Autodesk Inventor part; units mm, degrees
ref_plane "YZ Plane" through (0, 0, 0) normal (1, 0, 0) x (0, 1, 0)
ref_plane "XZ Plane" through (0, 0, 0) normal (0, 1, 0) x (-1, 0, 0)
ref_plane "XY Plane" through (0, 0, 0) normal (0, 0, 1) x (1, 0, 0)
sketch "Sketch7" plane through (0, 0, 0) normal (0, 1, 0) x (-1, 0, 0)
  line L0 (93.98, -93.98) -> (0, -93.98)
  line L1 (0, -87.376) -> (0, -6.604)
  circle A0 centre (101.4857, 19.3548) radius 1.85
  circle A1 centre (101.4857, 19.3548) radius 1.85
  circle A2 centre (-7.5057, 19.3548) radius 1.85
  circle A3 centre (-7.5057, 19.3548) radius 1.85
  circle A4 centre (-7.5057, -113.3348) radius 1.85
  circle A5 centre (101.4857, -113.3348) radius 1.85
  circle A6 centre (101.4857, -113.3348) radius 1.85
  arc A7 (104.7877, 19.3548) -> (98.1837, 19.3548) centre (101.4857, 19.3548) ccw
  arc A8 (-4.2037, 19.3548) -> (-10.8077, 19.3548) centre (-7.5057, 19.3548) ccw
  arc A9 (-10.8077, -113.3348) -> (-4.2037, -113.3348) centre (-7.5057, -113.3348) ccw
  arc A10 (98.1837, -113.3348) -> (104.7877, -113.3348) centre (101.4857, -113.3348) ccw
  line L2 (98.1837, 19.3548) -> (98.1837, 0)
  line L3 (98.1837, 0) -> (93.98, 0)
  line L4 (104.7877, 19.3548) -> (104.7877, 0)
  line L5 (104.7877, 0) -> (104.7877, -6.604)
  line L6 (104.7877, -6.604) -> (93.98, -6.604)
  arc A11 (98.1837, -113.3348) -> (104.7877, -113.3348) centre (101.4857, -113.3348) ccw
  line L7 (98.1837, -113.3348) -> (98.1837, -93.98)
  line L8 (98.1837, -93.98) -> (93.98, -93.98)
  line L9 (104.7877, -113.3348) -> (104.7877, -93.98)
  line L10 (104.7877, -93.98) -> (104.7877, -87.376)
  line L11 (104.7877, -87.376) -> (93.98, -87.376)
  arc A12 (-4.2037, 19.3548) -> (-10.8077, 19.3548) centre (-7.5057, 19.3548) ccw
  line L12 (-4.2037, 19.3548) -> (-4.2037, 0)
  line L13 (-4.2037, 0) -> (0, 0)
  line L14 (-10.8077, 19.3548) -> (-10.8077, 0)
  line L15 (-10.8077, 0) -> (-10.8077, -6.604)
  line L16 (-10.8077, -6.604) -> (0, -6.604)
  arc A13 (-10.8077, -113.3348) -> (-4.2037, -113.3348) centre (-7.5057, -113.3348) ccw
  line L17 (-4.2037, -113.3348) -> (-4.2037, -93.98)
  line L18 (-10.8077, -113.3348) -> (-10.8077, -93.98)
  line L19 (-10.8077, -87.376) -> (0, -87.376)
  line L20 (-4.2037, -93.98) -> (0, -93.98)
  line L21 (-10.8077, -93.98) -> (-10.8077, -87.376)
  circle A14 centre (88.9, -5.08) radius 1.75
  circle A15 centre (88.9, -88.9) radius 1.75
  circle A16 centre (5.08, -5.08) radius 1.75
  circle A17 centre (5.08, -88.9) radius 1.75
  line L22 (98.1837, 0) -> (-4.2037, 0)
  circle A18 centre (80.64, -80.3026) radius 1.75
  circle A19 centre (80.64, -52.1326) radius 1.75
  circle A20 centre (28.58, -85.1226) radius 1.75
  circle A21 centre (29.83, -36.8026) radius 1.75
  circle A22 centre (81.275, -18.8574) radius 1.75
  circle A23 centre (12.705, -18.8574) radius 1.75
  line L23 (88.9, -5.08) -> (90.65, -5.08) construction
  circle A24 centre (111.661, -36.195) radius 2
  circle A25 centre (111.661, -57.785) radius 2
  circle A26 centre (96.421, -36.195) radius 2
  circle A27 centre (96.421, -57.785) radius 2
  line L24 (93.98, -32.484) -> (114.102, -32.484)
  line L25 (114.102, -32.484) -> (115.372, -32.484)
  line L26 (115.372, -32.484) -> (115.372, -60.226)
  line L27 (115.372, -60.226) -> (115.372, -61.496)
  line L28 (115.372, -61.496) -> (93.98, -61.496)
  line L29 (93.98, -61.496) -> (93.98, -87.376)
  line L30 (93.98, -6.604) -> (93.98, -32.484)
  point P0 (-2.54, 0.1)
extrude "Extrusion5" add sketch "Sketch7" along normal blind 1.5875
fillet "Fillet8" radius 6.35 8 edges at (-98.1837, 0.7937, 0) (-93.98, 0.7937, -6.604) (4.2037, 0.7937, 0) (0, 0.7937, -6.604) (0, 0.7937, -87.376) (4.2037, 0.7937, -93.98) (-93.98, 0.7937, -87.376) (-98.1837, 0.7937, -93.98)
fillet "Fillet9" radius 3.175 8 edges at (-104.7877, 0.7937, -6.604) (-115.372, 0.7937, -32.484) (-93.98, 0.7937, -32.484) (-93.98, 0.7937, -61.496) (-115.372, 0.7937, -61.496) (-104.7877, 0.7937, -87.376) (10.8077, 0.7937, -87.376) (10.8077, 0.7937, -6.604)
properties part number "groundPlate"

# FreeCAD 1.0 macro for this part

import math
import FreeCAD as App
import Part
import Sketcher
from FreeCAD import Vector
Q = App.Units.Quantity


def edges_at(feature, points):
    """Names of the edges that pass closest to the given points."""
    edges = feature.Shape.Edges
    near = lambda p: min(range(len(edges)), key=lambda i: edges[i].distToShape(Part.Vertex(*p))[0])
    return sorted({f"Edge{near(p) + 1}" for p in points})

doc = App.newDocument("Part")
params = doc.addObject("Spreadsheet::Sheet", "Params")
for row, (alias, value) in enumerate([
    ("sketch1_radius", "0.13 in"),
    ("sketch1_height", "3.18 in"),
    ("sketch1_width", "4.031 in"),
    ("sketch1_height2", "0.762 in"),
    ("pad1_length", "0.0625 in"),
    ("fillet_radius", "0.25 in"),
    ("fillet2_radius", "0.125 in"),
], start=1):
    params.set(f"A{row}", alias)
    params.set(f"B{row}", "=" + value)
    params.setAlias(f"B{row}", alias)

body = doc.addObject("PartDesign::Body", "Body")

# Sketch on XZ plane
sketch1 = doc.addObject("Sketcher::SketchObject", "Sketch")
body.addObject(sketch1)
sketch1.AttachmentSupport = (doc.XZ_Plane, [""])
sketch1.MapMode = "FlatFace"
sketch1.addGeometry([
    Part.LineSegment(Vector(4.2, -94, 0), Vector(-98.2, -94, 0)),  # 0
    Part.LineSegment(Vector(-98.2, -94, 0), Vector(-98.2, -113.3, 0)),  # 1
    Part.ArcOfCircle(Part.Circle(Vector(-101.5, -113.3, 0), Vector(0, 0, 1), 3.3), math.radians(180), math.radians(360)),  # 2
    Part.LineSegment(Vector(-104.8, -113.3, 0), Vector(-104.8, -87.4, 0)),  # 3
    Part.LineSegment(Vector(-104.8, -87.4, 0), Vector(-94, -87.4, 0)),  # 4
    Part.LineSegment(Vector(-94, -87.4, 0), Vector(-94, -61.5, 0)),  # 5
    Part.LineSegment(Vector(-94, -61.5, 0), Vector(-115.4, -61.5, 0)),  # 6
    Part.LineSegment(Vector(-115.4, -61.5, 0), Vector(-115.4, -32.5, 0)),  # 7
    Part.LineSegment(Vector(-115.4, -32.5, 0), Vector(-94, -32.5, 0)),  # 8
    Part.LineSegment(Vector(-94, -32.5, 0), Vector(-94, -6.6, 0)),  # 9
    Part.LineSegment(Vector(-94, -6.6, 0), Vector(-104.8, -6.6, 0)),  # 10
    Part.LineSegment(Vector(-104.8, -6.6, 0), Vector(-104.8, 19.4, 0)),  # 11
    Part.ArcOfCircle(Part.Circle(Vector(-101.5, 19.4, 0), Vector(0, 0, 1), 3.3), math.radians(0), math.radians(180)),  # 12
    Part.LineSegment(Vector(-98.2, 19.4, 0), Vector(-98.2, 0, 0)),  # 13
    Part.LineSegment(Vector(-98.2, 0, 0), Vector(4.2, 0, 0)),  # 14
    Part.LineSegment(Vector(4.2, 0, 0), Vector(4.2, 19.4, 0)),  # 15
    Part.ArcOfCircle(Part.Circle(Vector(7.5, 19.4, 0), Vector(0, 0, 1), 3.3), math.radians(0), math.radians(180)),  # 16
    Part.LineSegment(Vector(10.8, 19.4, 0), Vector(10.8, -6.6, 0)),  # 17
    Part.LineSegment(Vector(10.8, -6.6, 0), Vector(0, -6.6, 0)),  # 18
    Part.LineSegment(Vector(0, -6.6, 0), Vector(0, -87.4, 0)),  # 19
    Part.LineSegment(Vector(0, -87.4, 0), Vector(10.8, -87.4, 0)),  # 20
    Part.LineSegment(Vector(10.8, -87.4, 0), Vector(10.8, -113.3, 0)),  # 21
    Part.ArcOfCircle(Part.Circle(Vector(7.5, -113.3, 0), Vector(0, 0, 1), 3.3), math.radians(180), math.radians(360)),  # 22
    Part.LineSegment(Vector(4.2, -113.3, 0), Vector(4.2, -94, 0)),  # 23
    Part.Circle(Vector(7.5, -113.3, 0), Vector(0, 0, 1), 1.9),  # 24
    Part.Circle(Vector(-5.1, -88.9, 0), Vector(0, 0, 1), 1.8),  # 25
    Part.Circle(Vector(-28.6, -85.1, 0), Vector(0, 0, 1), 1.8),  # 26
    Part.Circle(Vector(-101.5, -113.3, 0), Vector(0, 0, 1), 1.9),  # 27
    Part.Circle(Vector(-88.9, -88.9, 0), Vector(0, 0, 1), 1.8),  # 28
    Part.Circle(Vector(-80.6, -80.3, 0), Vector(0, 0, 1), 1.8),  # 29
    Part.Circle(Vector(-80.6, -52.1, 0), Vector(0, 0, 1), 1.8),  # 30
    Part.Circle(Vector(-96.4, -57.8, 0), Vector(0, 0, 1), 2),  # 31
    Part.Circle(Vector(-111.7, -57.8, 0), Vector(0, 0, 1), 2),  # 32
    Part.Circle(Vector(-12.7, -18.9, 0), Vector(0, 0, 1), 1.8),  # 33
    Part.Circle(Vector(-29.8, -36.8, 0), Vector(0, 0, 1), 1.8),  # 34
    Part.Circle(Vector(-5.1, -5.1, 0), Vector(0, 0, 1), 1.8),  # 35
    Part.Circle(Vector(7.5, 19.4, 0), Vector(0, 0, 1), 1.9),  # 36
    Part.Circle(Vector(-81.3, -18.9, 0), Vector(0, 0, 1), 1.8),  # 37
    Part.Circle(Vector(-96.4, -36.2, 0), Vector(0, 0, 1), 2),  # 38
    Part.Circle(Vector(-111.7, -36.2, 0), Vector(0, 0, 1), 2),  # 39
    Part.Circle(Vector(-88.9, -5.1, 0), Vector(0, 0, 1), 1.8),  # 40
    Part.Circle(Vector(-101.5, 19.4, 0), Vector(0, 0, 1), 1.9),  # 41
], False)
sketch1.addConstraint([
    Sketcher.Constraint("Coincident", 0, 2, 1, 1),
    Sketcher.Constraint("Tangent", 1, 2, 2, 2),
    Sketcher.Constraint("Tangent", 2, 1, 3, 1),
    Sketcher.Constraint("Coincident", 3, 2, 4, 1),
    Sketcher.Constraint("Coincident", 4, 2, 5, 1),
    Sketcher.Constraint("Coincident", 5, 2, 6, 1),
    Sketcher.Constraint("Coincident", 6, 2, 7, 1),
    Sketcher.Constraint("Coincident", 7, 2, 8, 1),
    Sketcher.Constraint("Coincident", 8, 2, 9, 1),
    Sketcher.Constraint("Coincident", 9, 2, 10, 1),
    Sketcher.Constraint("Coincident", 10, 2, 11, 1),
    Sketcher.Constraint("Tangent", 11, 2, 12, 2),
    Sketcher.Constraint("Tangent", 12, 1, 13, 1),
    Sketcher.Constraint("Coincident", 13, 2, 14, 1),
    Sketcher.Constraint("Coincident", 14, 2, 15, 1),
    Sketcher.Constraint("Tangent", 15, 2, 16, 2),
    Sketcher.Constraint("Tangent", 16, 1, 17, 1),
    Sketcher.Constraint("Coincident", 17, 2, 18, 1),
    Sketcher.Constraint("Coincident", 18, 2, 19, 1),
    Sketcher.Constraint("Coincident", 19, 2, 20, 1),
    Sketcher.Constraint("Coincident", 20, 2, 21, 1),
    Sketcher.Constraint("Tangent", 21, 2, 22, 2),
    Sketcher.Constraint("Tangent", 22, 1, 23, 1),
    Sketcher.Constraint("Coincident", 23, 2, 0, 1),
    Sketcher.Constraint("Horizontal", 0),
    Sketcher.Constraint("Vertical", 1),
    Sketcher.Constraint("Vertical", 3),
    Sketcher.Constraint("Horizontal", 4),
    Sketcher.Constraint("Vertical", 5),
    Sketcher.Constraint("Horizontal", 6),
    Sketcher.Constraint("Vertical", 7),
    Sketcher.Constraint("Horizontal", 8),
    Sketcher.Constraint("Vertical", 9),
    Sketcher.Constraint("Horizontal", 10),
    Sketcher.Constraint("Vertical", 11),
    Sketcher.Constraint("Vertical", 13),
    Sketcher.Constraint("Horizontal", 14),
    Sketcher.Constraint("Vertical", 15),
    Sketcher.Constraint("Vertical", 17),
    Sketcher.Constraint("Horizontal", 18),
    Sketcher.Constraint("Vertical", 19),
    Sketcher.Constraint("Horizontal", 20),
    Sketcher.Constraint("Vertical", 21),
    Sketcher.Constraint("Vertical", 23),
    Sketcher.Constraint("Coincident", 24, 3, 22, 3),
    Sketcher.Constraint("Coincident", 27, 3, 2, 3),
    Sketcher.Constraint("Coincident", 36, 3, 16, 3),
    Sketcher.Constraint("Coincident", 41, 3, 12, 3),
    Sketcher.Constraint("Equal", 2, 12),
    Sketcher.Constraint("Equal", 12, 16),
    Sketcher.Constraint("Equal", 16, 22),
    Sketcher.Constraint("Equal", 25, 26),
    Sketcher.Constraint("Equal", 24, 27),
    Sketcher.Constraint("Equal", 26, 28),
    Sketcher.Constraint("Equal", 28, 29),
    Sketcher.Constraint("Equal", 29, 30),
    Sketcher.Constraint("Equal", 31, 32),
    Sketcher.Constraint("Equal", 30, 33),
    Sketcher.Constraint("Equal", 33, 34),
    Sketcher.Constraint("Equal", 34, 35),
    Sketcher.Constraint("Equal", 27, 36),
    Sketcher.Constraint("Equal", 35, 37),
    Sketcher.Constraint("Equal", 32, 38),
    Sketcher.Constraint("Equal", 38, 39),
    Sketcher.Constraint("Equal", 37, 40),
    Sketcher.Constraint("Equal", 36, 41),
    Sketcher.Constraint("PointOnObject", 13, 2, -1),
    Sketcher.Constraint("PointOnObject", 18, 2, -2),
    Sketcher.Constraint("Horizontal", 12, 3, 16, 3),
    Sketcher.Constraint("Horizontal", 2, 3, 22, 3),
    Sketcher.Constraint("Horizontal", 25, 3, 28, 3),
    Sketcher.Constraint("Horizontal", 31, 3, 32, 3),
    Sketcher.Constraint("Horizontal", 33, 3, 37, 3),
    Sketcher.Constraint("Horizontal", 38, 3, 39, 3),
    Sketcher.Constraint("Horizontal", 35, 3, 40, 3),
    Sketcher.Constraint("Horizontal", 10, 2, 17, 2),
    Sketcher.Constraint("Horizontal", 4, 2, 19, 2),
    Sketcher.Constraint("Vertical", 2, 3, 12, 3),
    Sketcher.Constraint("Vertical", 16, 3, 22, 3),
    Sketcher.Constraint("Vertical", 29, 3, 30, 3),
    Sketcher.Constraint("Vertical", 25, 3, 35, 3),
    Sketcher.Constraint("Vertical", 31, 3, 38, 3),
    Sketcher.Constraint("Vertical", 32, 3, 39, 3),
    Sketcher.Constraint("Vertical", 28, 3, 40, 3),
    Sketcher.Constraint("Vertical", 5, 2, 8, 2),
    Sketcher.Constraint("Equal", 10, 18),
    Sketcher.Constraint("Equal", 5, 9),
    Sketcher.Constraint("Equal", 3, 11),
    Sketcher.Constraint("Equal", 1, 13),
    Sketcher.Constraint("Radius", 2, Q("0.13 in")),
    Sketcher.Constraint("Diameter", 25, Q("0.1378 in")),
    Sketcher.Constraint("DistanceY", 19, 2, 19, 1, Q("3.18 in")),
    Sketcher.Constraint("DistanceX", 25, 3, -1, 1, Q("0.2 in")),
    Sketcher.Constraint("DistanceY", 25, 3, -1, 1, Q("3.5 in")),
    Sketcher.Constraint("DistanceX", 28, 3, -1, 1, Q("3.5 in")),
    Sketcher.Constraint("DistanceY", 35, 3, -1, 1, Q("0.2 in")),
    Sketcher.Constraint("DistanceY", 0, 2, -1, 1, Q("3.7 in")),
    Sketcher.Constraint("DistanceX", 4, 2, -1, 1, Q("3.7 in")),
    Sketcher.Constraint("DistanceX", 32, 3, 31, 3, Q("0.6 in")),
    Sketcher.Constraint("Diameter", 24, Q("3.7 mm")),
    Sketcher.Constraint("Diameter", 31, Q("4 mm")),
    Sketcher.Constraint("DistanceX", 0, 2, 0, 1, Q("4.031 in")),
    Sketcher.Constraint("DistanceY", 1, 2, 1, 1, Q("0.762 in")),
    Sketcher.Constraint("DistanceY", 31, 3, 38, 3, Q("0.85 in")),
    Sketcher.Constraint("DistanceX", 6, 2, 6, 1, Q("0.8422 in")),
    Sketcher.Constraint("DistanceY", 5, 1, 5, 2, Q("1.0189 in")),
    Sketcher.Constraint("DistanceY", 31, 3, -1, 1, Q("2.275 in")),
    Sketcher.Constraint("DistanceX", 26, 3, 33, 3, Q("0.625 in")),
    Sketcher.Constraint("DistanceX", 37, 3, 30, 3, Q("0.025 in")),
    Sketcher.Constraint("DistanceX", 26, 3, -1, 1, Q("1.1252 in")),
    Sketcher.Constraint("DistanceX", 29, 3, -1, 1, Q("3.1748 in")),
    Sketcher.Constraint("DistanceX", 31, 3, -1, 1, Q("3.7961 in")),
    Sketcher.Constraint("DistanceX", 34, 3, -1, 1, Q("1.1744 in")),
    Sketcher.Constraint("DistanceY", 29, 3, 33, 3, Q("2.4191 in")),
    Sketcher.Constraint("DistanceY", 34, 3, 33, 3, Q("0.7065 in")),
    Sketcher.Constraint("DistanceY", 26, 3, -1, 1, Q("85.1226 mm")),
    Sketcher.Constraint("DistanceY", 29, 3, -1, 1, Q("80.3026 mm")),
    Sketcher.Constraint("DistanceY", 30, 3, -1, 1, Q("52.1326 mm")),
])
sketch1.setExpression("Constraints[89]", "Params.sketch1_radius")
sketch1.setExpression("Constraints[91]", "Params.sketch1_height")
sketch1.setExpression("Constraints[101]", "Params.sketch1_width")
sketch1.setExpression("Constraints[102]", "Params.sketch1_height2")
pad1 = doc.addObject("PartDesign::Pad", "Pad")
body.addObject(pad1)
pad1.Profile = sketch1
pad1.setExpression("Length", "Params.pad1_length")
pad1.Reversed = True
doc.recompute()

fillet = doc.addObject("PartDesign::Fillet", "Fillet")
body.addObject(fillet)
fillet.Base = (pad1, edges_at(pad1, [
    (-98.184, 0.794, 0),
    (-93.98, 0.794, -6.604),
    (4.204, 0.794, 0),
    (0, 0.794, -6.604),
    (0, 0.794, -87.376),
    (4.204, 0.794, -93.98),
    (-93.98, 0.794, -87.376),
    (-98.184, 0.794, -93.98),
]))
fillet.setExpression("Radius", "Params.fillet_radius")
doc.recompute()

fillet2 = doc.addObject("PartDesign::Fillet", "Fillet001")
body.addObject(fillet2)
fillet2.Base = (fillet, edges_at(fillet, [
    (-104.788, 0.794, -6.604),
    (-115.372, 0.794, -32.484),
    (-93.98, 0.794, -32.484),
    (-93.98, 0.794, -61.496),
    (-115.372, 0.794, -61.496),
    (-104.788, 0.794, -87.376),
    (10.808, 0.794, -87.376),
    (10.808, 0.794, -6.604),
]))
fillet2.setExpression("Radius", "Params.fillet2_radius")

doc.recompute()
